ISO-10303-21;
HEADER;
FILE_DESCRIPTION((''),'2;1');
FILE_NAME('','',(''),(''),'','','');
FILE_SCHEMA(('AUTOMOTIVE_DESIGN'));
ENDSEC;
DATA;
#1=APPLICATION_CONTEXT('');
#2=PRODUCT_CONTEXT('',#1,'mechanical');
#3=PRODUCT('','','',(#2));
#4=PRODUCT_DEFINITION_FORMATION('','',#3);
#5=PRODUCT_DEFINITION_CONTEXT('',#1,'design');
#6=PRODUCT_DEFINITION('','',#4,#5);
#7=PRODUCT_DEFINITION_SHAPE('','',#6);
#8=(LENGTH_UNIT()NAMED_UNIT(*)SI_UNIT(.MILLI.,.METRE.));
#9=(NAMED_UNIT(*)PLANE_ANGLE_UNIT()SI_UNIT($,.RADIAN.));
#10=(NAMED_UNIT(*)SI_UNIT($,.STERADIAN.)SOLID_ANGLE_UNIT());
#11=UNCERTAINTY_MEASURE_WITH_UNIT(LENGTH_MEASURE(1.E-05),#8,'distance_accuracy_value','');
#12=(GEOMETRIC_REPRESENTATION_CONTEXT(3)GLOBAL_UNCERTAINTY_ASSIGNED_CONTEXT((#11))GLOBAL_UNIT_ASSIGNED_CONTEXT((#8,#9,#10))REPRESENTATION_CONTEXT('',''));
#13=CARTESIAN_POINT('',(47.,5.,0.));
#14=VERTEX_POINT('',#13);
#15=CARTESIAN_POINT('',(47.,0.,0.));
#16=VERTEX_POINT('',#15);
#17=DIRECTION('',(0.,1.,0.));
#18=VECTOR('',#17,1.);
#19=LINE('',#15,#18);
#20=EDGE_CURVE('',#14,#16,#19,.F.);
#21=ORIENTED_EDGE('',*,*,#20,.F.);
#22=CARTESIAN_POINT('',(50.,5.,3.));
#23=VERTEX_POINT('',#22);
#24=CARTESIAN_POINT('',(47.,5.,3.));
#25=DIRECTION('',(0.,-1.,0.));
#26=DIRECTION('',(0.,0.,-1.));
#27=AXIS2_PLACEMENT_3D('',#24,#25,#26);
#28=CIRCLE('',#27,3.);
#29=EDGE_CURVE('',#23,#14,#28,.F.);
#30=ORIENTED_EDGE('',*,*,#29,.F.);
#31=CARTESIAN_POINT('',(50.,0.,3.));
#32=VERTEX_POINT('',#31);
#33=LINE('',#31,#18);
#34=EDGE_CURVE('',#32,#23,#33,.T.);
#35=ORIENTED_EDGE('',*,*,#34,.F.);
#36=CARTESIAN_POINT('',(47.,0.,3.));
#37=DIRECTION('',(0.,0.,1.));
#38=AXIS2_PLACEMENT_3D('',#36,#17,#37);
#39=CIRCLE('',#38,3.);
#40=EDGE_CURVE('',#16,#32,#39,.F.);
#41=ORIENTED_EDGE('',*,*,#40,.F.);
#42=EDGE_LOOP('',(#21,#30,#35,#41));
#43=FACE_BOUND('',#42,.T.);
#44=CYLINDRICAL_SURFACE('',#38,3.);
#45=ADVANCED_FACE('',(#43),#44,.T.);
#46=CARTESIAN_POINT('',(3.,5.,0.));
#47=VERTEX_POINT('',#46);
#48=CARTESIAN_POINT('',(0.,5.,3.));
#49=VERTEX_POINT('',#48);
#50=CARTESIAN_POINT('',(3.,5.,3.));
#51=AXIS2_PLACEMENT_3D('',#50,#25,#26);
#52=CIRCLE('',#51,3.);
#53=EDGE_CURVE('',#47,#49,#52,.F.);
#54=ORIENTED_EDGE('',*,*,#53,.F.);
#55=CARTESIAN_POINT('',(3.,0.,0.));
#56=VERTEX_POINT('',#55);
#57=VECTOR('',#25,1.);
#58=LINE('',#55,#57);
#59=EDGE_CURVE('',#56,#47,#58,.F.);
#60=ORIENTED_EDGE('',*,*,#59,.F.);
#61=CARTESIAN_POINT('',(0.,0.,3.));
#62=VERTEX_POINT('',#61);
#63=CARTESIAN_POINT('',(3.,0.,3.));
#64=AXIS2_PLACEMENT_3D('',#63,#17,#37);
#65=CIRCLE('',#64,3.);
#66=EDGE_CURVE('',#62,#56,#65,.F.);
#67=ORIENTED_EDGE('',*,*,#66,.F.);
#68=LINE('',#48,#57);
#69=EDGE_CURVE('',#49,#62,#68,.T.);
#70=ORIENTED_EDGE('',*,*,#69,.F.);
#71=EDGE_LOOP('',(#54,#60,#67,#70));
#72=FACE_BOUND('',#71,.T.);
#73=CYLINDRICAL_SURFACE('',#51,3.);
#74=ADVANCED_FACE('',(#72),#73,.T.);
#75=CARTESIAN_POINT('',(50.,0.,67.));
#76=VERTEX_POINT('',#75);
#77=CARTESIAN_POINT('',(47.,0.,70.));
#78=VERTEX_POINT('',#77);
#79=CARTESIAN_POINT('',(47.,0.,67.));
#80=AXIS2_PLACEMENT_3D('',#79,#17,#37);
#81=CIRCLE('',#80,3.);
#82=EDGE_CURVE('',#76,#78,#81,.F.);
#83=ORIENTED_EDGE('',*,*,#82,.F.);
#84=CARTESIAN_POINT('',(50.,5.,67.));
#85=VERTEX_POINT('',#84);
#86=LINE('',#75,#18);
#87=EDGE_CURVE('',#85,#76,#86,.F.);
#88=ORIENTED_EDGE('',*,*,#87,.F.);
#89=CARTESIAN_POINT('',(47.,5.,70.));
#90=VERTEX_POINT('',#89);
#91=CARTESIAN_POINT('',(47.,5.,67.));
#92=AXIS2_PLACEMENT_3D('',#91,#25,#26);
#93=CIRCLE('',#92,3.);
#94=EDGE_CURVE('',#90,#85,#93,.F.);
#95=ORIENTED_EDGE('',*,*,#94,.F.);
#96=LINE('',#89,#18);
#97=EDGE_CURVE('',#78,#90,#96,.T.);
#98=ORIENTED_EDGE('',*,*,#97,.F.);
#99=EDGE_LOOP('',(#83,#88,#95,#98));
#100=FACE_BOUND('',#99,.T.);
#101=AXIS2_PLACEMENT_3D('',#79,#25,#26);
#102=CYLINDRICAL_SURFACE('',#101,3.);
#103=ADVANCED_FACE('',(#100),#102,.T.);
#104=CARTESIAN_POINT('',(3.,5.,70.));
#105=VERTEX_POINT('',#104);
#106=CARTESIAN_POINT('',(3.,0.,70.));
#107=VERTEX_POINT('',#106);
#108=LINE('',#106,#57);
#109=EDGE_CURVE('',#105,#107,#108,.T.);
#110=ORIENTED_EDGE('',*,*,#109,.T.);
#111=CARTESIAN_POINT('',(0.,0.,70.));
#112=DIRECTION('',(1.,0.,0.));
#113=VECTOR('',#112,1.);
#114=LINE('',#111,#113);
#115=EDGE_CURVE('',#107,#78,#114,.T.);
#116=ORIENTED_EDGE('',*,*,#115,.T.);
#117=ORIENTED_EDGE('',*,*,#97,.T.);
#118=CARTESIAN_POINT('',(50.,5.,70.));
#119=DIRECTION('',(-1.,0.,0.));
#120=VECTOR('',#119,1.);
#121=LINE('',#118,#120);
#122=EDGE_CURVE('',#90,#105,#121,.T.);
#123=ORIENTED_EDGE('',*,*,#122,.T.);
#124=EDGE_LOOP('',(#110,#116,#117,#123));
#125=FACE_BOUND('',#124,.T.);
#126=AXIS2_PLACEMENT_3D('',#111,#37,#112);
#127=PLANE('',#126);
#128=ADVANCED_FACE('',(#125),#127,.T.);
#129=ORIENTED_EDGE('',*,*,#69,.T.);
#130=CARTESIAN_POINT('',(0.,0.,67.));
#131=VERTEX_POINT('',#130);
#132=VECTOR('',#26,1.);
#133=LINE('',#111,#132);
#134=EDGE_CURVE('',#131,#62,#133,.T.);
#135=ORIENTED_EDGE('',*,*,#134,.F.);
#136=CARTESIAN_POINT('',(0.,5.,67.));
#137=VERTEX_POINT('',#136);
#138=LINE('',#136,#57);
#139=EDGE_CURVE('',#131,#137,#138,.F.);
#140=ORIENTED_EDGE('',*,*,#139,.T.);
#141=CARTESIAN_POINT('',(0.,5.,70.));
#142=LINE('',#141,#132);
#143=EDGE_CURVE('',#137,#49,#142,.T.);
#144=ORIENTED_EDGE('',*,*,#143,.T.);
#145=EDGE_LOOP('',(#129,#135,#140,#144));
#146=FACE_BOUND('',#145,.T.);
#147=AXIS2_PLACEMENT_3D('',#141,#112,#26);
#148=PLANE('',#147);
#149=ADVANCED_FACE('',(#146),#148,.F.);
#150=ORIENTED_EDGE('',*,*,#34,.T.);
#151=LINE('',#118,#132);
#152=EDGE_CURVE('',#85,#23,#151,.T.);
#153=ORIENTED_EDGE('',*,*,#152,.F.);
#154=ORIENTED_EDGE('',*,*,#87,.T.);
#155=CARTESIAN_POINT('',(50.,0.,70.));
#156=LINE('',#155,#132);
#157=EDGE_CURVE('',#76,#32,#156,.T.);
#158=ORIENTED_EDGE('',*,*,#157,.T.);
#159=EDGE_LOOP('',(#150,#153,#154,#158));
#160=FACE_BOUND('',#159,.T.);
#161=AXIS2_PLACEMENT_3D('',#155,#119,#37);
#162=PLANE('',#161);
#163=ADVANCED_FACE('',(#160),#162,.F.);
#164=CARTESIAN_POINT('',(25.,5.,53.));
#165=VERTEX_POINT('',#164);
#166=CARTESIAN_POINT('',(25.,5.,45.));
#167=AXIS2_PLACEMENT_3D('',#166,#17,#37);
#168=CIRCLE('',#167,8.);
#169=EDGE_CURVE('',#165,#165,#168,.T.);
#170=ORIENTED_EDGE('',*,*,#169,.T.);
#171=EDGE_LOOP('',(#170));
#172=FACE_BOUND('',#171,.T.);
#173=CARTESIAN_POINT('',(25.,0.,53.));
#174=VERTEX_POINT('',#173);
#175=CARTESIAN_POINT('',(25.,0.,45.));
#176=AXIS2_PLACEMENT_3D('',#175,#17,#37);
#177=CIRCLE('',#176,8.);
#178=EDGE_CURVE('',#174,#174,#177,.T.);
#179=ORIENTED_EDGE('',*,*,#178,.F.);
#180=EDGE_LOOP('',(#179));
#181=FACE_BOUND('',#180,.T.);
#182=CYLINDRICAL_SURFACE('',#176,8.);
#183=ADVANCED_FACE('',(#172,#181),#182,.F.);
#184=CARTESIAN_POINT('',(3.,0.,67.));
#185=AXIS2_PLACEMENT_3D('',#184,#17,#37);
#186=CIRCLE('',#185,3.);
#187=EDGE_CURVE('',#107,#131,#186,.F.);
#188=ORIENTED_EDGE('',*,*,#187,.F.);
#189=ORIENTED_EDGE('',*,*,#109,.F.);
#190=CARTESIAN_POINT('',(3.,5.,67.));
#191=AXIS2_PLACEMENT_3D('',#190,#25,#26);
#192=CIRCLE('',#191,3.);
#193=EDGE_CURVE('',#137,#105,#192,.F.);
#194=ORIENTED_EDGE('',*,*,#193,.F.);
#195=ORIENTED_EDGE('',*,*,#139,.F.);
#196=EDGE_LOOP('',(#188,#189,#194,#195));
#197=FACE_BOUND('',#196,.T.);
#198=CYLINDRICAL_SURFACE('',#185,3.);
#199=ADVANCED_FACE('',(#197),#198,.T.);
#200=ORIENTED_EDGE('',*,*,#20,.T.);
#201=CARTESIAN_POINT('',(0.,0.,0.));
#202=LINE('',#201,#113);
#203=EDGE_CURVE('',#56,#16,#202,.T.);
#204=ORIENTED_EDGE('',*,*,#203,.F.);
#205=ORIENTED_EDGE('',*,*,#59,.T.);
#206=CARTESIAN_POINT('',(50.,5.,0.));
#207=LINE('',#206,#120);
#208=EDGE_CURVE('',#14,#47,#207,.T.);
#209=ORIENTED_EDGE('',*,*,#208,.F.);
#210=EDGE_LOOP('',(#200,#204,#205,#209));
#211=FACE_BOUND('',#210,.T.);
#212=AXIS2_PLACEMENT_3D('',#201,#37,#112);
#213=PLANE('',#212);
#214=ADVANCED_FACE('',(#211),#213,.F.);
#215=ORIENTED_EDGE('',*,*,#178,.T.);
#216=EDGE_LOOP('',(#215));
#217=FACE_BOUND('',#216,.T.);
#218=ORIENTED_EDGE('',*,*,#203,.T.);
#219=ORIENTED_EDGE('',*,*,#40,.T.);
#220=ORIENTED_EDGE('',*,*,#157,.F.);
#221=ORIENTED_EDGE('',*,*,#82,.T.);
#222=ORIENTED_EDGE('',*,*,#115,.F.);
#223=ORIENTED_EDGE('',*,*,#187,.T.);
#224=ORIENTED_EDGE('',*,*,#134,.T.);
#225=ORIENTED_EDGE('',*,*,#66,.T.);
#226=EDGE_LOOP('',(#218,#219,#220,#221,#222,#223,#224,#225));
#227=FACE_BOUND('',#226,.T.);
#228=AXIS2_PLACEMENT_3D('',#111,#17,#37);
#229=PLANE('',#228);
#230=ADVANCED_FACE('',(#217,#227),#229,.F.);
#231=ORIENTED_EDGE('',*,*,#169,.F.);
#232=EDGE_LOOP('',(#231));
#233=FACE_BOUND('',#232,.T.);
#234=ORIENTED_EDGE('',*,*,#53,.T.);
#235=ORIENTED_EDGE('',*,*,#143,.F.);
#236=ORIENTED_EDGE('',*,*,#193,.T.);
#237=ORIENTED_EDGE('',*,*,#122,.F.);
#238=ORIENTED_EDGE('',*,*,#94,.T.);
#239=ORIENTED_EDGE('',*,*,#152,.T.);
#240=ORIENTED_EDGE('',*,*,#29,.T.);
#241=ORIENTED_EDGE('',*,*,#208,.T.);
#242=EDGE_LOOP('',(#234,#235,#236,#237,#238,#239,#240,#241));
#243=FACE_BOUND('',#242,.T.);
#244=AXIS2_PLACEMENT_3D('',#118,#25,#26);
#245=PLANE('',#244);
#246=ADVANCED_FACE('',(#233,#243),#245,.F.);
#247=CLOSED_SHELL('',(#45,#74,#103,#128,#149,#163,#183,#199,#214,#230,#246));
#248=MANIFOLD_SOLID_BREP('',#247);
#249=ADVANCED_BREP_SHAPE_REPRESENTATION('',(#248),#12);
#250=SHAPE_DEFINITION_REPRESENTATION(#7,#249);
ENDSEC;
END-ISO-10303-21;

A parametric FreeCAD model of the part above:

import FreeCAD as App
import Part
import Sketcher
Q = App.Units.Quantity


def edges_at(feature, points):
    """Names of the edges that pass closest to the given points."""
    edges = feature.Shape.Edges
    near = lambda p: min(range(len(edges)), key=lambda i: edges[i].distToShape(Part.Vertex(*p))[0])
    return sorted({f"Edge{near(p) + 1}" for p in points})

doc = App.newDocument("Part")
body = doc.addObject("PartDesign::Body", "Body")

# Sketch on XY plane
sketch1 = body.newObject("Sketcher::SketchObject", "Sketch")
sketch1.AttachmentSupport = (doc.getObject("XY_Plane"), [""])
sketch1.MapMode = "FlatFace"
sketch1.addGeometry([
    Part.LineSegment(App.Vector(0, 5, 0), App.Vector(0, 0, 0)),
    Part.LineSegment(App.Vector(0, 0, 0), App.Vector(50, 0, 0)),
    Part.LineSegment(App.Vector(50, 0, 0), App.Vector(50, 5, 0)),
    Part.LineSegment(App.Vector(50, 5, 0), App.Vector(0, 5, 0)),
], False)
sketch1.addConstraint([
    Sketcher.Constraint("Coincident", 0, 2, 1, 1),
    Sketcher.Constraint("Coincident", 1, 2, 2, 1),
    Sketcher.Constraint("Coincident", 2, 2, 3, 1),
    Sketcher.Constraint("Coincident", 3, 2, 0, 1),
    Sketcher.Constraint("Vertical", 0),
    Sketcher.Constraint("Horizontal", 1),
    Sketcher.Constraint("Vertical", 2),
    Sketcher.Constraint("Horizontal", 3),
    Sketcher.Constraint("Coincident", 0, 2, -1, 1),
    Sketcher.Constraint("DistanceX", 1, 1, 1, 2, Q("50 mm")),
    Sketcher.Constraint("DistanceY", 0, 2, 0, 1, Q("5 mm")),
])
pad1 = body.newObject("PartDesign::Pad", "Pad")
pad1.Profile = sketch1
pad1.Length = 70
doc.recompute()

fillet = body.newObject("PartDesign::Fillet", "Fillet")
fillet.Base = (pad1, edges_at(pad1, [
    (50, 2.5, 70),
    (0, 2.5, 70),
    (50, 2.5, 0),
    (0, 2.5, 0),
]))
fillet.Radius = 3

# Sketch on XZ plane
sketch2 = body.newObject("Sketcher::SketchObject", "Sketch001")
sketch2.AttachmentSupport = (doc.getObject("XZ_Plane"), [""])
sketch2.MapMode = "FlatFace"
sketch2.AttachmentOffset = App.Placement(App.Vector(0, 0, -5), App.Rotation())
sketch2.addGeometry(Part.Circle(App.Vector(25, 45, 0), App.Vector(0, 0, 1), 8), False)
sketch2.addConstraint([
    Sketcher.Constraint("Diameter", 0, Q("16 mm")),
    Sketcher.Constraint("DistanceX", -1, 1, 0, 3, Q("25 mm")),
    Sketcher.Constraint("DistanceY", -1, 1, 0, 3, Q("45 mm")),
])
pocket1 = body.newObject("PartDesign::Pocket", "Pocket")
pocket1.Profile = sketch2
pocket1.Type = "ThroughAll"
pocket1.Reversed = True

doc.recompute()
